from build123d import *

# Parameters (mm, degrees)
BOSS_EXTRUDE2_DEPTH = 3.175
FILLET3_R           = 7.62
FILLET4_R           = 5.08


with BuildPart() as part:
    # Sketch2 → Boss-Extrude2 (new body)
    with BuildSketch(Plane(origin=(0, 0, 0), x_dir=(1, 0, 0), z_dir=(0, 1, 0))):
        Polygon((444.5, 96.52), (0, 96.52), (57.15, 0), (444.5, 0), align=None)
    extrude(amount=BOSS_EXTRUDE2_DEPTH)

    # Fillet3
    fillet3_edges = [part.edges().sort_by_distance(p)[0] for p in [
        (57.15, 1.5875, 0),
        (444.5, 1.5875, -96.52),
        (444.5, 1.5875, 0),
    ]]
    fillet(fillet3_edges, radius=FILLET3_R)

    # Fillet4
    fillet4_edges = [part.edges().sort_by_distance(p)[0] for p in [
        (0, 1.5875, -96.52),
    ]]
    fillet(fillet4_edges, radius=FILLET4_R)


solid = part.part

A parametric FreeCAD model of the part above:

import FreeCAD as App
import Part
import Sketcher

V = App.Vector
Q = App.Units.Quantity


def edges_at(feature, points):
    """Names of the edges that pass closest to the given points."""
    edges = feature.Shape.Edges
    near = lambda p: min(range(len(edges)), key=lambda i: edges[i].distToShape(Part.Vertex(*p))[0])
    return sorted({f"Edge{near(p) + 1}" for p in points})


def add_polygon(sketch, points):
    """Adds a closed chain of lines whose ends are joined by coincident constraints."""
    first, n = sketch.GeometryCount, len(points)
    for a, b in zip(points, points[1:] + points[:1]):
        sketch.addGeometry(Part.LineSegment(App.Vector(*a, 0), App.Vector(*b, 0)), False)
    for i in range(n):
        sketch.addConstraint(Sketcher.Constraint("Coincident", first + i, 2, first + (i + 1) % n, 1))

doc = App.newDocument("Part")
body = doc.addObject("PartDesign::Body", "Body")

# Sketch on XZ plane
sketch1 = doc.addObject("Sketcher::SketchObject", "Sketch")
body.addObject(sketch1)
sketch1.AttachmentSupport = (doc.XZ_Plane, [""])
sketch1.MapMode = "FlatFace"
add_polygon(sketch1, [(444.5, -96.52), (0, -96.52), (57.15, 0), (444.5, 0)])  # lines 0-3
sketch1.addConstraint(Sketcher.Constraint("Horizontal", 0))
sketch1.addConstraint(Sketcher.Constraint("Horizontal", 2))
sketch1.addConstraint(Sketcher.Constraint("Vertical", 3))
sketch1.addConstraint(Sketcher.Constraint("PointOnObject", 0, 2, -2))
sketch1.addConstraint(Sketcher.Constraint("PointOnObject", 1, 2, -1))
sketch1.addConstraint(Sketcher.Constraint("DistanceX", 0, 2, 0, 1, Q("17.5 in")))
sketch1.addConstraint(Sketcher.Constraint("DistanceY", 3, 2, 3, 1, Q("3.8 in")))
sketch1.addConstraint(Sketcher.Constraint("DistanceX", 2, 1, 2, 2, Q("15.25 in")))
pad1 = doc.addObject("PartDesign::Pad", "Pad")
body.addObject(pad1)
pad1.Profile = sketch1
pad1.Length = Q("0.125 in")
pad1.Reversed = True
doc.recompute()

fillet = doc.addObject("PartDesign::Fillet", "Fillet")
body.addObject(fillet)
fillet.Base = (pad1, edges_at(pad1, [(57.15, 1.587, 0), (444.5, 1.587, -96.52), (444.5, 1.587, 0)]))
fillet.Radius = Q("0.3 in")
doc.recompute()

fillet2 = doc.addObject("PartDesign::Fillet", "Fillet001")
body.addObject(fillet2)
fillet2.Base = (fillet, edges_at(fillet, [(0, 1.587, -96.52)]))
fillet2.Radius = Q("0.2 in")

doc.recompute()
